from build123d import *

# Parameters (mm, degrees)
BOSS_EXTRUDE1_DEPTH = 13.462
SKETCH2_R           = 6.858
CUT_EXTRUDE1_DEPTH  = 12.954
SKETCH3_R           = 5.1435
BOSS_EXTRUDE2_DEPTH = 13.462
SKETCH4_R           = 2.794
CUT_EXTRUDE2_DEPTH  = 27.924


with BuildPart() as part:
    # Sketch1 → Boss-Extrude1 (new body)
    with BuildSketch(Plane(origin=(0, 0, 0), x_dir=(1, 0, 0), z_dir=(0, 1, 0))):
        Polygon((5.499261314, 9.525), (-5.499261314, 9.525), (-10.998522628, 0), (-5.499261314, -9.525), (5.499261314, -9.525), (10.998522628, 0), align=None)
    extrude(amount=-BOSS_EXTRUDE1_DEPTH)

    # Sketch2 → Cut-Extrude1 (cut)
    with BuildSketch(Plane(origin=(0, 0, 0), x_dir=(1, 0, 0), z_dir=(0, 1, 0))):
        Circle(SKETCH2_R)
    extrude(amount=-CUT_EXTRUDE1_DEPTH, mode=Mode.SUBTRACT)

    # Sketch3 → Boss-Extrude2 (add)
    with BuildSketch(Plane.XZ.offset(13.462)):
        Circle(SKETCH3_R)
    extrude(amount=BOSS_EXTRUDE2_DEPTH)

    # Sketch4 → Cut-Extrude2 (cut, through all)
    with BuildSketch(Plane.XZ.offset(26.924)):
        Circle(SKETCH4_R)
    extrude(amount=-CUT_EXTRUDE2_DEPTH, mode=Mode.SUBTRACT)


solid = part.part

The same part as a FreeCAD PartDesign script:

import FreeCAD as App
import Part
import Sketcher
from FreeCAD import Vector
Q = App.Units.Quantity

doc = App.newDocument("Part")
body = doc.addObject("PartDesign::Body", "Body")

sketch1 = body.newObject("Sketcher::SketchObject", "Sketch")
sketch1.AttachmentSupport = (doc.getObject("XZ_Plane"), [""])
sketch1.MapMode = "FlatFace"
sketch1.addGeometry(Part.LineSegment(Vector(5, -10, 0), Vector(-5, -10, 0)), False)
sketch1.addGeometry(Part.LineSegment(Vector(-5, -10, 0), Vector(-11, 0, 0)), False)
sketch1.addGeometry(Part.LineSegment(Vector(-11, 0, 0), Vector(-5, 10, 0)), False)
sketch1.addGeometry(Part.LineSegment(Vector(-5, 10, 0), Vector(5, 10, 0)), False)
sketch1.addGeometry(Part.LineSegment(Vector(5, 10, 0), Vector(11, 0, 0)), False)
sketch1.addGeometry(Part.LineSegment(Vector(11, 0, 0), Vector(5, -10, 0)), False)
sketch1.addConstraint(Sketcher.Constraint("Coincident", 0, 2, 1, 1))
sketch1.addConstraint(Sketcher.Constraint("Coincident", 1, 2, 2, 1))
sketch1.addConstraint(Sketcher.Constraint("Coincident", 2, 2, 3, 1))
sketch1.addConstraint(Sketcher.Constraint("Coincident", 3, 2, 4, 1))
sketch1.addConstraint(Sketcher.Constraint("Coincident", 4, 2, 5, 1))
sketch1.addConstraint(Sketcher.Constraint("Coincident", 5, 2, 0, 1))
sketch1.addConstraint(Sketcher.Constraint("Horizontal", 0))
sketch1.addConstraint(Sketcher.Constraint("Horizontal", 3))
sketch1.addConstraint(Sketcher.Constraint("Symmetric", 0, 2, 3, 2, -1, 1))
sketch1.addConstraint(Sketcher.Constraint("Symmetric", 1, 2, 4, 2, -1, 1))
sketch1.addConstraint(Sketcher.Constraint("PointOnObject", 1, 2, -1))
sketch1.addConstraint(Sketcher.Constraint("Parallel", 2, 5))
sketch1.addConstraint(Sketcher.Constraint("Vertical", 0, 2, 2, 2))
sketch1.addConstraint(Sketcher.Constraint("Angle", 1, Q("120 deg")))
sketch1.addConstraint(Sketcher.Constraint("DistanceY", 0, 2, 2, 2, Q("0.75 in")))
sketch1.addConstraint(Sketcher.Constraint("DistanceX", 0, 2, 0, 1, Q("10.998523 mm")))
pad1 = body.newObject("PartDesign::Pad", "Pad")
pad1.Profile = sketch1
pad1.Length = Q("0.53 in")

sketch2 = body.newObject("Sketcher::SketchObject", "Sketch001")
sketch2.AttachmentSupport = (doc.getObject("XZ_Plane"), [""])
sketch2.MapMode = "FlatFace"
sketch2.addGeometry(Part.Circle(Vector(0, 0, 0), Vector(0, 0, 1), 7), False)
sketch2.addConstraint(Sketcher.Constraint("Coincident", 0, 3, -1, 1))
sketch2.addConstraint(Sketcher.Constraint("Diameter", 0, Q("0.54 in")))
pocket1 = body.newObject("PartDesign::Pocket", "Pocket")
pocket1.Profile = sketch2
pocket1.Length = Q("0.51 in")
pocket1.Reversed = True

sketch3 = body.newObject("Sketcher::SketchObject", "Sketch002")
sketch3.AttachmentSupport = (doc.getObject("XZ_Plane"), [""])
sketch3.MapMode = "FlatFace"
sketch3.AttachmentOffset = App.Placement(Vector(0, 0, 0.53 * 25.4), App.Rotation())
sketch3.addGeometry(Part.Circle(Vector(0, 0, 0), Vector(0, 0, 1), 5), False)
sketch3.addConstraint(Sketcher.Constraint("Coincident", 0, 3, -1, 1))
sketch3.addConstraint(Sketcher.Constraint("Diameter", 0, Q("0.405 in")))
pad2 = body.newObject("PartDesign::Pad", "Pad001")
pad2.Profile = sketch3
pad2.Length = Q("0.53 in")

sketch4 = body.newObject("Sketcher::SketchObject", "Sketch003")
sketch4.AttachmentSupport = (doc.getObject("XZ_Plane"), [""])
sketch4.MapMode = "FlatFace"
sketch4.AttachmentOffset = App.Placement(Vector(0, 0, 1.06 * 25.4), App.Rotation())
sketch4.addGeometry(Part.Circle(Vector(0, 0, 0), Vector(0, 0, 1), 2.8), False)
sketch4.addConstraint(Sketcher.Constraint("Coincident", 0, 3, -1, 1))
sketch4.addConstraint(Sketcher.Constraint("Diameter", 0, Q("0.22 in")))
pocket2 = body.newObject("PartDesign::Pocket", "Pocket001")
pocket2.Profile = sketch4
pocket2.Type = "ThroughAll"

doc.recompute()
